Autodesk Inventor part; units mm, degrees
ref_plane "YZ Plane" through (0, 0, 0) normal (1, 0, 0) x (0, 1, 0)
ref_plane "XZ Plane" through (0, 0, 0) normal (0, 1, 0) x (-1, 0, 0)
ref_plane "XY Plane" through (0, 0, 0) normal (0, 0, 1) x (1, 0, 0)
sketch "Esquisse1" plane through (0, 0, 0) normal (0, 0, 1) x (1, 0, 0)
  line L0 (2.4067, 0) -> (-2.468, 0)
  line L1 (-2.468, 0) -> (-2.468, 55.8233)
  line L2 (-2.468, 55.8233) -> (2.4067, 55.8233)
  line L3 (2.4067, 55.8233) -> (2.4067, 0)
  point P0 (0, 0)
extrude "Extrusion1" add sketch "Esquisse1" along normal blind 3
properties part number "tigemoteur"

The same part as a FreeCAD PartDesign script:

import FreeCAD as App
import Part
import Sketcher

V = App.Vector


def add_polygon(sketch, points):
    """Adds a closed chain of lines whose ends are joined by coincident constraints."""
    first, n = sketch.GeometryCount, len(points)
    for a, b in zip(points, points[1:] + points[:1]):
        sketch.addGeometry(Part.LineSegment(App.Vector(*a, 0), App.Vector(*b, 0)), False)
    for i in range(n):
        sketch.addConstraint(Sketcher.Constraint("Coincident", first + i, 2, first + (i + 1) % n, 1))

doc = App.newDocument("Part")
body = doc.addObject("PartDesign::Body", "Body")

sketch1 = body.newObject("Sketcher::SketchObject", "Sketch")
sketch1.AttachmentSupport = (doc.getObject("XY_Plane"), [""])
sketch1.MapMode = "FlatFace"
add_polygon(sketch1, [(-2.5, 0), (2.4, 0), (2.4, 55.8), (-2.5, 55.8)])
sketch1.addConstraint([
    Sketcher.Constraint("Horizontal", 0),
    Sketcher.Constraint("Vertical", 1),
    Sketcher.Constraint("Horizontal", 2),
    Sketcher.Constraint("Vertical", 3),
    Sketcher.Constraint("PointOnObject", 0, 2, -1),
    Sketcher.Constraint("DistanceX", 0, 1, 0, 2, 4.8747),
    Sketcher.Constraint("DistanceY", 1, 1, 1, 2, 55.8233),
    Sketcher.Constraint("DistanceX", 2, 2, -1, 1, 2.468),
])
pad1 = body.newObject("PartDesign::Pad", "Pad")
pad1.Profile = sketch1
pad1.Length = 3

doc.recompute()
